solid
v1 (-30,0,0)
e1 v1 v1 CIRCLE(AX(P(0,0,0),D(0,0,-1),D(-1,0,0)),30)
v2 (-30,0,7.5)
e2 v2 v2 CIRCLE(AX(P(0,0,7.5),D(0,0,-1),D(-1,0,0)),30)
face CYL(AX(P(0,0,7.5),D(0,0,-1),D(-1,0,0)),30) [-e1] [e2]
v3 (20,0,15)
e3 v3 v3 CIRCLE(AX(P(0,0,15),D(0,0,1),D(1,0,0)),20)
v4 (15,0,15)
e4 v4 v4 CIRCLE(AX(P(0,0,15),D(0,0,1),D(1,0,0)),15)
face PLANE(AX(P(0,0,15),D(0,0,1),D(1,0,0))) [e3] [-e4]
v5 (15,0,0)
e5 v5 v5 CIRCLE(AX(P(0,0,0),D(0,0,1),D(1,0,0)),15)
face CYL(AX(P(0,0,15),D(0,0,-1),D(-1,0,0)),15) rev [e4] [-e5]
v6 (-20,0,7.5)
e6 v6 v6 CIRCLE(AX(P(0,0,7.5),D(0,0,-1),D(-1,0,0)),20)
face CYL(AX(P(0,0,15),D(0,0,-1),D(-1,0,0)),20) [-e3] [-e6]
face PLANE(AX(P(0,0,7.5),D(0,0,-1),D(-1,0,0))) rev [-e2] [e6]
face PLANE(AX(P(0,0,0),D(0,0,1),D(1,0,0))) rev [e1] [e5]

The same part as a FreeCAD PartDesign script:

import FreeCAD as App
import Part
import Sketcher

V = App.Vector

doc = App.newDocument("Part")
body = doc.addObject("PartDesign::Body", "Body")

# Sketch on XY plane
sketch1 = body.newObject("Sketcher::SketchObject", "Sketch")
sketch1.AttachmentSupport = (doc.getObject("XY_Plane"), [""])
sketch1.MapMode = "FlatFace"
sketch1.addGeometry([
    Part.Circle(V(0, 0, 0), V(0, 0, 1), 20),
    Part.Circle(V(0, 0, 0), V(0, 0, 1), 15),
], False)
sketch1.addConstraint([
    Sketcher.Constraint("Coincident", 0, 3, -1, 1),
    Sketcher.Constraint("Coincident", 1, 3, -1, 1),
    Sketcher.Constraint("Diameter", 0, 40.0),
    Sketcher.Constraint("Diameter", 1, 30.0),
])
pad1 = body.newObject("PartDesign::Pad", "Pad")
pad1.Profile = sketch1
pad1.Length = 15

# Sketch on XY plane
sketch2 = body.newObject("Sketcher::SketchObject", "Sketch001")
sketch2.AttachmentSupport = (doc.getObject("XY_Plane"), [""])
sketch2.MapMode = "FlatFace"
sketch2.addGeometry([
    Part.Circle(V(0, 0, 0), V(0, 0, 1), 30),
    Part.Circle(V(0, 0, 0), V(0, 0, 1), 20),
], False)
sketch2.addConstraint([
    Sketcher.Constraint("Coincident", 0, 3, -1, 1),
    Sketcher.Constraint("Coincident", 1, 3, -1, 1),
    Sketcher.Constraint("Diameter", 0, 60.0),
    Sketcher.Constraint("Diameter", 1, 40.0),
])
pad2 = body.newObject("PartDesign::Pad", "Pad001")
pad2.Profile = sketch2
pad2.Length = 7.5

doc.recompute()
